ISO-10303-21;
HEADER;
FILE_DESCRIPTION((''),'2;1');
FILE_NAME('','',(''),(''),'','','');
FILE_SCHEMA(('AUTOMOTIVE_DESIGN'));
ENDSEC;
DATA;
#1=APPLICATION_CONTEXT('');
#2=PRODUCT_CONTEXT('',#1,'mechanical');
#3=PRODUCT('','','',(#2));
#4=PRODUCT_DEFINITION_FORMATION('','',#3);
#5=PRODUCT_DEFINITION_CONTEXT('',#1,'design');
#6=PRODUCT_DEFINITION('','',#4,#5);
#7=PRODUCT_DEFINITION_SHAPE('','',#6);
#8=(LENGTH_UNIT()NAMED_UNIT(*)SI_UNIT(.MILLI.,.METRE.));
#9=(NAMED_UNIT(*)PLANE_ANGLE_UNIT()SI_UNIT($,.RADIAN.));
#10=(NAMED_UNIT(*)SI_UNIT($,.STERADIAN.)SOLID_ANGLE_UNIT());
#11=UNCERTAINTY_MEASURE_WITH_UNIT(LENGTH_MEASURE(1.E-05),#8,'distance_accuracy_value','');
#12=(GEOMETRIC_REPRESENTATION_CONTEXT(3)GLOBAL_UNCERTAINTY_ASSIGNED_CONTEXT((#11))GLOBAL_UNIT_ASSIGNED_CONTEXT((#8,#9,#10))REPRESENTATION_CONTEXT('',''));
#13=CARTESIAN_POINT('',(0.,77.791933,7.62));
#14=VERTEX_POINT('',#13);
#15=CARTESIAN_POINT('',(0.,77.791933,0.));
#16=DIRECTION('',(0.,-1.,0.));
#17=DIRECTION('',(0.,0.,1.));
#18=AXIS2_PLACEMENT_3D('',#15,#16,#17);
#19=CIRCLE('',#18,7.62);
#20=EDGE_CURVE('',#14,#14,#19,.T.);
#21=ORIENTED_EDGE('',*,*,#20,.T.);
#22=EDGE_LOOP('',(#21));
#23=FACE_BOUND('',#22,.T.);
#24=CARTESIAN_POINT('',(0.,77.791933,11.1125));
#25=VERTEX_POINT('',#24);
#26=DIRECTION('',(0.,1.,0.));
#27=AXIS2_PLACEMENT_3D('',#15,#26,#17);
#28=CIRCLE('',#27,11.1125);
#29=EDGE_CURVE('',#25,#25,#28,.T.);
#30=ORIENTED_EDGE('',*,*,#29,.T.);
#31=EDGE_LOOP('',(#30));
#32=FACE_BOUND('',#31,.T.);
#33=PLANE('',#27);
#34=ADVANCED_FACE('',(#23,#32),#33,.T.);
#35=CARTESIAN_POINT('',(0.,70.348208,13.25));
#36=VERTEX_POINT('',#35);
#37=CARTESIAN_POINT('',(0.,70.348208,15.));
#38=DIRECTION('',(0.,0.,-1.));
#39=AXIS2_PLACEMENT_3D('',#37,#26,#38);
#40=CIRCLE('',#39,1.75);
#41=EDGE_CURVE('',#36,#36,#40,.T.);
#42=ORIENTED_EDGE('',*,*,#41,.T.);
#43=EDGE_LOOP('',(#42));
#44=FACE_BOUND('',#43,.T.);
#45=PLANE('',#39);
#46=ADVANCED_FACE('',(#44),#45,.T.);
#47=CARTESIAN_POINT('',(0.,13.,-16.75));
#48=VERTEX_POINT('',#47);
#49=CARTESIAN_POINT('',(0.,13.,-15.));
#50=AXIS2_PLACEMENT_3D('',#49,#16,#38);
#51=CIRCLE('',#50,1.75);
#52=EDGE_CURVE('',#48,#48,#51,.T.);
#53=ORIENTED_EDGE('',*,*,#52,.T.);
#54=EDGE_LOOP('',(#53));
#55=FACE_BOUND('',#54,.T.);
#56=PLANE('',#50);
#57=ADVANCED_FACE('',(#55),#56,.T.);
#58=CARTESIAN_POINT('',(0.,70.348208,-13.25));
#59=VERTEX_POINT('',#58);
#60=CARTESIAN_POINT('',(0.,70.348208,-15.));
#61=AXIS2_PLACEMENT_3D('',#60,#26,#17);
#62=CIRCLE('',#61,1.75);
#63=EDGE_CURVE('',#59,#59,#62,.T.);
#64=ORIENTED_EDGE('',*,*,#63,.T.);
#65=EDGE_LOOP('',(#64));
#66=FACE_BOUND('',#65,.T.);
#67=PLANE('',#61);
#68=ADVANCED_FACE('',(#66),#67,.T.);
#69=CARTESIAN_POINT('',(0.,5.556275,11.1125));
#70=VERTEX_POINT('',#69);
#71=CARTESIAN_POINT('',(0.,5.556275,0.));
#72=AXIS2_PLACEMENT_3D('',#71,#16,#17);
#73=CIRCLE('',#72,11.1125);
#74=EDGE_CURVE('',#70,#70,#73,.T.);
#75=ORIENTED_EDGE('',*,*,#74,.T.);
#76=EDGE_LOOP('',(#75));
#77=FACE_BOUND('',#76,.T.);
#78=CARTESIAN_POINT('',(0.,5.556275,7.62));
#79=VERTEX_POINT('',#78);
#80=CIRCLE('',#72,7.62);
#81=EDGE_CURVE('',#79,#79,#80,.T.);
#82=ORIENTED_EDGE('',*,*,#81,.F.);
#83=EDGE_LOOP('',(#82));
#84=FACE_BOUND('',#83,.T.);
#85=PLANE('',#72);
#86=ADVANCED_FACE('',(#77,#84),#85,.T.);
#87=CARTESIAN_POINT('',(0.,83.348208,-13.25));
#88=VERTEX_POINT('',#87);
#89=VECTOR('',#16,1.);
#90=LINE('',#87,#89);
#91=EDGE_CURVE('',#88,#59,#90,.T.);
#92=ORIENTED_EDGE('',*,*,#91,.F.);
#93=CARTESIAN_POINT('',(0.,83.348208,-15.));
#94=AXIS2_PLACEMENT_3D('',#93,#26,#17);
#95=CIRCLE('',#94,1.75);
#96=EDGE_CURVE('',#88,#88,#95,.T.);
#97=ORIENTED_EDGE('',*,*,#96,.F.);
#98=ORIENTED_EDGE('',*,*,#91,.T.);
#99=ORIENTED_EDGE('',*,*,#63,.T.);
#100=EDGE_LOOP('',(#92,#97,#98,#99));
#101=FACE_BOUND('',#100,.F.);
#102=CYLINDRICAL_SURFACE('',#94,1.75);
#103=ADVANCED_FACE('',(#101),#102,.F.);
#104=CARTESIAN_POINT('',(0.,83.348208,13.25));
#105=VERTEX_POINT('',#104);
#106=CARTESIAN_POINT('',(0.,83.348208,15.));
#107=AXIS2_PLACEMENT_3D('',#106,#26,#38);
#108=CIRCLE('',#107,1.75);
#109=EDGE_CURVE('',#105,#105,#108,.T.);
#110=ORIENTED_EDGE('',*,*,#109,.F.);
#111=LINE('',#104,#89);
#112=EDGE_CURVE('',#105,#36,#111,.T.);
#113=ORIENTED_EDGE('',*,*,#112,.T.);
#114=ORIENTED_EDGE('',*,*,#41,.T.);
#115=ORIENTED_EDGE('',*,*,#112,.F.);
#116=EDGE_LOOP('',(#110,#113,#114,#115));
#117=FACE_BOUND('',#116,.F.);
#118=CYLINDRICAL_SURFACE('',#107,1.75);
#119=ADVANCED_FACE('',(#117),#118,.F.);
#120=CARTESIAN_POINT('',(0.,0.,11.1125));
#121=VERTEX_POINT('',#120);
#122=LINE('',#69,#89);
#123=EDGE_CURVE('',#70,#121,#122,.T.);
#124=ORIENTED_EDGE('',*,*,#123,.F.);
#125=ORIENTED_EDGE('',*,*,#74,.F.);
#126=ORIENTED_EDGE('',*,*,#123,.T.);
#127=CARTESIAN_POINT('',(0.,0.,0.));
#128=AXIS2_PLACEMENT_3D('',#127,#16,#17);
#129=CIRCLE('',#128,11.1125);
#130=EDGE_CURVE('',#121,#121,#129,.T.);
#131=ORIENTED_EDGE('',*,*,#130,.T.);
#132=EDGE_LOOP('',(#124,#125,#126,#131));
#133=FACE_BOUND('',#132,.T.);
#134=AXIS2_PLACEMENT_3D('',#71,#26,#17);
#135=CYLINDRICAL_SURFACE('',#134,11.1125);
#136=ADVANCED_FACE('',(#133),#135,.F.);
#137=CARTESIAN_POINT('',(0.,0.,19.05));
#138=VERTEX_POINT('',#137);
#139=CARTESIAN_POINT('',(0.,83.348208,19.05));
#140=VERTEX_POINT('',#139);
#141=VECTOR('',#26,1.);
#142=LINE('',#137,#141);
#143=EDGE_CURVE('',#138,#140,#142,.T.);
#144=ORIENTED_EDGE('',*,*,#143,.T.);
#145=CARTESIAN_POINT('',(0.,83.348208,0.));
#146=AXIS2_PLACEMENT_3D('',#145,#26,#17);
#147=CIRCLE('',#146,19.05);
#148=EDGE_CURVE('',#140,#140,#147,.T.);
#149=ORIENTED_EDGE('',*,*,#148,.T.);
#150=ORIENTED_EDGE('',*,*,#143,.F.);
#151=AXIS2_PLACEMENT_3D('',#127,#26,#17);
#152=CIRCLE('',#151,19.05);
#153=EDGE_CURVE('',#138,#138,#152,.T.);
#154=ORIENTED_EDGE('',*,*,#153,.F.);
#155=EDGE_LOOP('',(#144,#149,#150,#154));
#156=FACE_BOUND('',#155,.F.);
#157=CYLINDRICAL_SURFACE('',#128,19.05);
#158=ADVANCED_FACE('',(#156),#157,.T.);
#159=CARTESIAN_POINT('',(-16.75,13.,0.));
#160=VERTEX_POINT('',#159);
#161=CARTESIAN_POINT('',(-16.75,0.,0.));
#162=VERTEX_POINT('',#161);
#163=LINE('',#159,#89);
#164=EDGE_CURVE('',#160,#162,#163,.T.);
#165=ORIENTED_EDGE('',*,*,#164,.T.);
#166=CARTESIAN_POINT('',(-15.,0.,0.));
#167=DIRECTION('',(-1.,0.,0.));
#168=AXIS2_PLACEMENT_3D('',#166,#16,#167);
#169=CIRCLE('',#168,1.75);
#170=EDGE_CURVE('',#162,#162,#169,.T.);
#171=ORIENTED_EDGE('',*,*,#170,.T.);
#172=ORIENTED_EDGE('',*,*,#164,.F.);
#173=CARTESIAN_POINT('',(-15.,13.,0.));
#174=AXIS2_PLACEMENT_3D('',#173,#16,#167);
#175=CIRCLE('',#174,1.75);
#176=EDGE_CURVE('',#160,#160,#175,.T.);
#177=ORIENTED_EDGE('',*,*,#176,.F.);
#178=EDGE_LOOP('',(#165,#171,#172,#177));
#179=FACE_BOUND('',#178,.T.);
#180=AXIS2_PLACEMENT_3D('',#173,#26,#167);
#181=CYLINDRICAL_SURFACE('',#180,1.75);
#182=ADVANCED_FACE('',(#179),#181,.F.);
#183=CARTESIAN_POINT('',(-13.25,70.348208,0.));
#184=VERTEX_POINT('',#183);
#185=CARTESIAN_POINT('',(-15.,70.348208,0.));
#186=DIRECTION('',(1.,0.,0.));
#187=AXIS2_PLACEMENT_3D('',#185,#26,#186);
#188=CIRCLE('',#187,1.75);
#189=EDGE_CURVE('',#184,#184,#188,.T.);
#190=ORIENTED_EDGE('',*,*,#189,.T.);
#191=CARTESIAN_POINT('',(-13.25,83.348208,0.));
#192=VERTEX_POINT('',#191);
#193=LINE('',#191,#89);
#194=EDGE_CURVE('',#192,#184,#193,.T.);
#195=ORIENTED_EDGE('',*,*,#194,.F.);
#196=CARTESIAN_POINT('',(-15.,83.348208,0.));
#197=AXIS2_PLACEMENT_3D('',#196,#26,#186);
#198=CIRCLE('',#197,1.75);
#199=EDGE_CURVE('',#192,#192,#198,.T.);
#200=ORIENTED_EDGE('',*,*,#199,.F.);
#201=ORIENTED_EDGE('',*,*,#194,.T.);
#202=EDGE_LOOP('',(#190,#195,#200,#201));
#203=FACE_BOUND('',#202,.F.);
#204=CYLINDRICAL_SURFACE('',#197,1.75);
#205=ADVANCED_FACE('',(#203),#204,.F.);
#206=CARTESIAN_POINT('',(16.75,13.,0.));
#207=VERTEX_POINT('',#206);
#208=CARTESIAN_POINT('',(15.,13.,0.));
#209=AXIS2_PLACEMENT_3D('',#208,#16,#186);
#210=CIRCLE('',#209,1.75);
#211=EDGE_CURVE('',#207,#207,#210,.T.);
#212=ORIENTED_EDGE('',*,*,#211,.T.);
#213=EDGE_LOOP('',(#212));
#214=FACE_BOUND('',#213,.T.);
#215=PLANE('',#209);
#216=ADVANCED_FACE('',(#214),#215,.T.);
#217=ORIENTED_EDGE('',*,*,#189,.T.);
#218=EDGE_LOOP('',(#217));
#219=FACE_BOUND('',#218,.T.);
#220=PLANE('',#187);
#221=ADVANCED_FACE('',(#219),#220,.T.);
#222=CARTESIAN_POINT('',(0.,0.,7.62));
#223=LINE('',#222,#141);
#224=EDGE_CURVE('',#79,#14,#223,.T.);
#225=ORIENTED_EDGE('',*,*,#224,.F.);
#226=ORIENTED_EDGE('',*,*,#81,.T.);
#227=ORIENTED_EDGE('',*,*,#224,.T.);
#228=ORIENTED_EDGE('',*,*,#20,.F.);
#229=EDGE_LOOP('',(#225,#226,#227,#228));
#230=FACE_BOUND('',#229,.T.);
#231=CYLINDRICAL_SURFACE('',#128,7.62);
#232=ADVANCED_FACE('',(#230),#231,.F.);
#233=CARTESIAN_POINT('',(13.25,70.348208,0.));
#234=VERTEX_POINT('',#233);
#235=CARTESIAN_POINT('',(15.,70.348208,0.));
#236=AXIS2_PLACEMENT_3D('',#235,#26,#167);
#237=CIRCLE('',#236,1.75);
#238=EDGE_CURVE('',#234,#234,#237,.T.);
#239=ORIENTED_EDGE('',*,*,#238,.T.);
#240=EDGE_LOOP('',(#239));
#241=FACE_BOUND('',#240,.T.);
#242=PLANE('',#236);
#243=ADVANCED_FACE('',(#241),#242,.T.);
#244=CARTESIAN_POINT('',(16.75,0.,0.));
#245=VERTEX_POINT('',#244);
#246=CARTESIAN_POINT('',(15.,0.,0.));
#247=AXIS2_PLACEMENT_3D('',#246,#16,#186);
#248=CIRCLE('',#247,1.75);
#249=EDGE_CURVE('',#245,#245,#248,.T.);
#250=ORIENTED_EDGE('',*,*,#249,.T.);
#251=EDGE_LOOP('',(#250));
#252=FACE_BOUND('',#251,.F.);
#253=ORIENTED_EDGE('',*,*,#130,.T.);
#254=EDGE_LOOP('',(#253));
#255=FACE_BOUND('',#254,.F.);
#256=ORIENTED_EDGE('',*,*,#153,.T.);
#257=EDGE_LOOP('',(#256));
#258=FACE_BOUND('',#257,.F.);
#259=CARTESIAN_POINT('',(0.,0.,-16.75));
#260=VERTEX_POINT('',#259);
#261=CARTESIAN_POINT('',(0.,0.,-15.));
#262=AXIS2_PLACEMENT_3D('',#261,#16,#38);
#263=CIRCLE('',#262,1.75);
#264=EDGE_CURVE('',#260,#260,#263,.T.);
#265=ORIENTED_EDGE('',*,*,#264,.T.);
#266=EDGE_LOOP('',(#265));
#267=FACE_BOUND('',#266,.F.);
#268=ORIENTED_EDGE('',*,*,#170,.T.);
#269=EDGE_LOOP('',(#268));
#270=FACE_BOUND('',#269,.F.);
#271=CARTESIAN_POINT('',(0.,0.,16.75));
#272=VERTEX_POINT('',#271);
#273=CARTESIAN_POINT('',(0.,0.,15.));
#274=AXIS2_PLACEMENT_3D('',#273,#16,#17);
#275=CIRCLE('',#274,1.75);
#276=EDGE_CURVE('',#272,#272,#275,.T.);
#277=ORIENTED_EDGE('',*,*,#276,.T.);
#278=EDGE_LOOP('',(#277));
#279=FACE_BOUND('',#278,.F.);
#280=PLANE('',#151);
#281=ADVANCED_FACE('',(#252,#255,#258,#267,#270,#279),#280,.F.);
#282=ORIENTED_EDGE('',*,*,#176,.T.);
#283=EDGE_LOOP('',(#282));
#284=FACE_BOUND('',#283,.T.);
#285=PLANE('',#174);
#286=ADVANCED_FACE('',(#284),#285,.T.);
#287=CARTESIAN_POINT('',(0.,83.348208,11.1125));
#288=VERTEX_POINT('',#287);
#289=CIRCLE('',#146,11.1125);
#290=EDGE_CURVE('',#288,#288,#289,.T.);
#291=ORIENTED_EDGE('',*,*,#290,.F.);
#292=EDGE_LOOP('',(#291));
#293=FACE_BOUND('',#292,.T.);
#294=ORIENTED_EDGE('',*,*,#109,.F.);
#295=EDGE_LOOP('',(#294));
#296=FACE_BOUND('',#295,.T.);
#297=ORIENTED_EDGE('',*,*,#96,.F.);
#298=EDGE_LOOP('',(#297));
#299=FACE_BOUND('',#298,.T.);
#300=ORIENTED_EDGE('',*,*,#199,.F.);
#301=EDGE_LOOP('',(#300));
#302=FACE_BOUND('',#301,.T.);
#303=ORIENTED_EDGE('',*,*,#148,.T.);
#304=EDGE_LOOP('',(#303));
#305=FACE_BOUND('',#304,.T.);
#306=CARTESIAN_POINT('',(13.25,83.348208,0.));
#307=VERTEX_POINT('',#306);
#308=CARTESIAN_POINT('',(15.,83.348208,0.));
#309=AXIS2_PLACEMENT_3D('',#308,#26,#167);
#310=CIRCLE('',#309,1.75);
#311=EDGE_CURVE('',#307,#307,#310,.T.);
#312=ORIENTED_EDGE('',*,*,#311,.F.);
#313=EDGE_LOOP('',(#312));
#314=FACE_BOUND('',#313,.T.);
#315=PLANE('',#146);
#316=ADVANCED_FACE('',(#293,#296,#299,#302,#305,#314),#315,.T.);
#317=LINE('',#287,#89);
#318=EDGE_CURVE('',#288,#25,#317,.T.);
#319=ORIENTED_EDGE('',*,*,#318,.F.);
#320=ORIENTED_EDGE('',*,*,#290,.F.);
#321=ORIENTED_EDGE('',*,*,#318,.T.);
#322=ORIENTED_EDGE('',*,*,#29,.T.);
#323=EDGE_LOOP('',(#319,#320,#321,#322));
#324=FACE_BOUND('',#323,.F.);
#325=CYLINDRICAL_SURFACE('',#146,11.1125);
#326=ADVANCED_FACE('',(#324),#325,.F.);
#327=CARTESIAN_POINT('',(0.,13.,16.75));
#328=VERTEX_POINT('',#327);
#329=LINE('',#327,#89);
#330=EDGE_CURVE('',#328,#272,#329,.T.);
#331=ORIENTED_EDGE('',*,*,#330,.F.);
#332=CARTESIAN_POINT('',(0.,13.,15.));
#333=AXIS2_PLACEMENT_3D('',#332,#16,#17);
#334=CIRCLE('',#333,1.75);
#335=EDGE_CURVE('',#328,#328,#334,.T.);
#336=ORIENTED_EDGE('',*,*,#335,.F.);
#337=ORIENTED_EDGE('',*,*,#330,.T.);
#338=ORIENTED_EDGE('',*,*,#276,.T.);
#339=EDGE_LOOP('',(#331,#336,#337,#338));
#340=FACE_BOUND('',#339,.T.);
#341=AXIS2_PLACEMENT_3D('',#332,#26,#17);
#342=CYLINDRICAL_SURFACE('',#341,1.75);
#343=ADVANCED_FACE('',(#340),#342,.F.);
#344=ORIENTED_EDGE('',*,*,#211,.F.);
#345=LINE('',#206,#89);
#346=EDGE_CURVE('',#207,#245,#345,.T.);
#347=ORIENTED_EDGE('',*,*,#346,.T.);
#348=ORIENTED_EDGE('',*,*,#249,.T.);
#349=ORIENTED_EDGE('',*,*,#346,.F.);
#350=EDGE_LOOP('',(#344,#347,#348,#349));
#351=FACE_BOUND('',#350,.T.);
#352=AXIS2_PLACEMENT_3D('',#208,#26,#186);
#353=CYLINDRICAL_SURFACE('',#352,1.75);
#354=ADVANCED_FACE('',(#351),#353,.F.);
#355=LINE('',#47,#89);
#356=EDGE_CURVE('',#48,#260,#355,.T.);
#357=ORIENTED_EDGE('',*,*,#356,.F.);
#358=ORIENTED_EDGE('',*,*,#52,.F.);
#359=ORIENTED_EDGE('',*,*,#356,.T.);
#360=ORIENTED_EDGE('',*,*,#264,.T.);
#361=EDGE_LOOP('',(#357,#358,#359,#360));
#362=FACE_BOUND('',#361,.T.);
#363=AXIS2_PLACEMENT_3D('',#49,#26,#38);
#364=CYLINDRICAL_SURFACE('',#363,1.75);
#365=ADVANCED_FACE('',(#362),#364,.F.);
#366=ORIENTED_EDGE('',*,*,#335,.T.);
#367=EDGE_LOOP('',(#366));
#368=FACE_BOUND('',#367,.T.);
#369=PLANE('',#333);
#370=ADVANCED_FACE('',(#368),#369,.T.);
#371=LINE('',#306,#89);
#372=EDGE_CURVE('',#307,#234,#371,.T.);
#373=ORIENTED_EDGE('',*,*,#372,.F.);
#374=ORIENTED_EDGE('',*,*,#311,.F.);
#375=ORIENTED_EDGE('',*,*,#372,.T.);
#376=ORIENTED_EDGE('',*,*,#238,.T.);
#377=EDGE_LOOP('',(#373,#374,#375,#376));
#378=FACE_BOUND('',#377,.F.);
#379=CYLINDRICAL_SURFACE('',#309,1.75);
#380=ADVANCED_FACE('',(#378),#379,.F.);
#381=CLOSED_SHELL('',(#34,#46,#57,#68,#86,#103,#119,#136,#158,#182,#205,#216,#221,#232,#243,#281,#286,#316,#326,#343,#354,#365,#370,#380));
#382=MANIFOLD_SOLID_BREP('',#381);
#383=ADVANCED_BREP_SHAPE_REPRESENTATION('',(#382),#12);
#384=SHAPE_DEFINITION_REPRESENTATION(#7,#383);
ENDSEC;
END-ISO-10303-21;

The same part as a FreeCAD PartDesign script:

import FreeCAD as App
import Part
import Sketcher
Q = App.Units.Quantity

doc = App.newDocument("Part")
body = doc.addObject("PartDesign::Body", "Body")

sketch1 = body.newObject("Sketcher::SketchObject", "Sketch")
sketch1.AttachmentSupport = (doc.getObject("XZ_Plane"), [""])
sketch1.MapMode = "FlatFace"
sketch1.addGeometry(Part.Circle(App.Vector(0, 0, 0), App.Vector(0, 0, 1), 19), False)
sketch1.addGeometry(Part.Circle(App.Vector(0, 0, 0), App.Vector(0, 0, 1), 8), False)
sketch1.addConstraint(Sketcher.Constraint("Coincident", 0, 3, -1, 1))
sketch1.addConstraint(Sketcher.Constraint("Coincident", 1, 3, -1, 1))
sketch1.addConstraint(Sketcher.Constraint("Diameter", 0, Q("1.5 in")))
sketch1.addConstraint(Sketcher.Constraint("Diameter", 1, Q("0.6 in")))
pad1 = body.newObject("PartDesign::Pad", "Pad")
pad1.Profile = sketch1
pad1.Length = 83.348208
pad1.Reversed = True

sketch2 = body.newObject("Sketcher::SketchObject", "Sketch001")
sketch2.AttachmentSupport = (doc.getObject("XZ_Plane"), [""])
sketch2.MapMode = "FlatFace"
sketch2.AttachmentOffset = App.Placement(App.Vector(0, 0, -83.348208), App.Rotation())
sketch2.addGeometry(Part.Circle(App.Vector(0, 0, 0), App.Vector(0, 0, 1), 11), False)
sketch2.addConstraint(Sketcher.Constraint("Coincident", 0, 3, -1, 1))
sketch2.addConstraint(Sketcher.Constraint("Diameter", 0, Q("0.875 in")))
pocket1 = body.newObject("PartDesign::Pocket", "Pocket")
pocket1.Profile = sketch2
pocket1.Length = 5.556275
pocket1.Reversed = True

sketch3 = body.newObject("Sketcher::SketchObject", "Sketch002")
sketch3.AttachmentSupport = (doc.getObject("XZ_Plane"), [""])
sketch3.MapMode = "FlatFace"
sketch3.AttachmentOffset = App.Placement(App.Vector(0, 0, -5.556275), App.Rotation())
sketch3.addGeometry(Part.Circle(App.Vector(0, 0, 0), App.Vector(0, 0, 1), 11), False)
sketch3.addConstraint(Sketcher.Constraint("Coincident", 0, 3, -1, 1))
sketch3.addConstraint(Sketcher.Constraint("Diameter", 0, Q("0.875 in")))
pocket2 = body.newObject("PartDesign::Pocket", "Pocket001")
pocket2.Profile = sketch3
pocket2.Length = 5.556275
pocket2.Reversed = True

sketch4 = body.newObject("Sketcher::SketchObject", "Sketch003")
sketch4.AttachmentSupport = (doc.getObject("XZ_Plane"), [""])
sketch4.MapMode = "FlatFace"
sketch4.AttachmentOffset = App.Placement(App.Vector(0, 0, -83.348208), App.Rotation())
sketch4.addGeometry(Part.Circle(App.Vector(0, -15, 0), App.Vector(0, 0, 1), 1.8), False)
sketch4.addConstraint(Sketcher.Constraint("PointOnObject", 0, 3, -2))
sketch4.addConstraint(Sketcher.Constraint("Diameter", 0, 3.5))
sketch4.addConstraint(Sketcher.Constraint("DistanceY", 0, 3, -1, 1, 15.0))
pocket3 = body.newObject("PartDesign::Pocket", "Pocket002")
pocket3.Profile = sketch4
pocket3.Length = 13
pocket3.Reversed = True
doc.recompute()

polarpattern = body.newObject("PartDesign::PolarPattern", "PolarPattern")
polarpattern.Originals = [pocket3]
polarpattern.Axis = (doc.getObject("Y_Axis"), [""])
polarpattern.Angle = 360
polarpattern.Occurrences = 4
body.Tip = polarpattern

sketch5 = body.newObject("Sketcher::SketchObject", "Sketch004")
sketch5.AttachmentSupport = (doc.getObject("XZ_Plane"), [""])
sketch5.MapMode = "FlatFace"
sketch5.AttachmentOffset = App.Placement(App.Vector(0, 0, -13), App.Rotation())
sketch5.addGeometry(Part.Circle(App.Vector(0, 15, 0), App.Vector(0, 0, 1), 1.8), False)
sketch5.addConstraint(Sketcher.Constraint("PointOnObject", 0, 3, -2))
sketch5.addConstraint(Sketcher.Constraint("Diameter", 0, 3.5))
sketch5.addConstraint(Sketcher.Constraint("DistanceY", -1, 1, 0, 3, 15.0))
pocket4 = body.newObject("PartDesign::Pocket", "Pocket003")
pocket4.Profile = sketch5
pocket4.Length = 13
pocket4.Reversed = True
doc.recompute()

polarpattern2 = body.newObject("PartDesign::PolarPattern", "PolarPattern001")
polarpattern2.Originals = [pocket4]
polarpattern2.Axis = (doc.getObject("Y_Axis"), [""])
polarpattern2.Angle = 360
polarpattern2.Occurrences = 4
body.Tip = polarpattern2

doc.recompute()
